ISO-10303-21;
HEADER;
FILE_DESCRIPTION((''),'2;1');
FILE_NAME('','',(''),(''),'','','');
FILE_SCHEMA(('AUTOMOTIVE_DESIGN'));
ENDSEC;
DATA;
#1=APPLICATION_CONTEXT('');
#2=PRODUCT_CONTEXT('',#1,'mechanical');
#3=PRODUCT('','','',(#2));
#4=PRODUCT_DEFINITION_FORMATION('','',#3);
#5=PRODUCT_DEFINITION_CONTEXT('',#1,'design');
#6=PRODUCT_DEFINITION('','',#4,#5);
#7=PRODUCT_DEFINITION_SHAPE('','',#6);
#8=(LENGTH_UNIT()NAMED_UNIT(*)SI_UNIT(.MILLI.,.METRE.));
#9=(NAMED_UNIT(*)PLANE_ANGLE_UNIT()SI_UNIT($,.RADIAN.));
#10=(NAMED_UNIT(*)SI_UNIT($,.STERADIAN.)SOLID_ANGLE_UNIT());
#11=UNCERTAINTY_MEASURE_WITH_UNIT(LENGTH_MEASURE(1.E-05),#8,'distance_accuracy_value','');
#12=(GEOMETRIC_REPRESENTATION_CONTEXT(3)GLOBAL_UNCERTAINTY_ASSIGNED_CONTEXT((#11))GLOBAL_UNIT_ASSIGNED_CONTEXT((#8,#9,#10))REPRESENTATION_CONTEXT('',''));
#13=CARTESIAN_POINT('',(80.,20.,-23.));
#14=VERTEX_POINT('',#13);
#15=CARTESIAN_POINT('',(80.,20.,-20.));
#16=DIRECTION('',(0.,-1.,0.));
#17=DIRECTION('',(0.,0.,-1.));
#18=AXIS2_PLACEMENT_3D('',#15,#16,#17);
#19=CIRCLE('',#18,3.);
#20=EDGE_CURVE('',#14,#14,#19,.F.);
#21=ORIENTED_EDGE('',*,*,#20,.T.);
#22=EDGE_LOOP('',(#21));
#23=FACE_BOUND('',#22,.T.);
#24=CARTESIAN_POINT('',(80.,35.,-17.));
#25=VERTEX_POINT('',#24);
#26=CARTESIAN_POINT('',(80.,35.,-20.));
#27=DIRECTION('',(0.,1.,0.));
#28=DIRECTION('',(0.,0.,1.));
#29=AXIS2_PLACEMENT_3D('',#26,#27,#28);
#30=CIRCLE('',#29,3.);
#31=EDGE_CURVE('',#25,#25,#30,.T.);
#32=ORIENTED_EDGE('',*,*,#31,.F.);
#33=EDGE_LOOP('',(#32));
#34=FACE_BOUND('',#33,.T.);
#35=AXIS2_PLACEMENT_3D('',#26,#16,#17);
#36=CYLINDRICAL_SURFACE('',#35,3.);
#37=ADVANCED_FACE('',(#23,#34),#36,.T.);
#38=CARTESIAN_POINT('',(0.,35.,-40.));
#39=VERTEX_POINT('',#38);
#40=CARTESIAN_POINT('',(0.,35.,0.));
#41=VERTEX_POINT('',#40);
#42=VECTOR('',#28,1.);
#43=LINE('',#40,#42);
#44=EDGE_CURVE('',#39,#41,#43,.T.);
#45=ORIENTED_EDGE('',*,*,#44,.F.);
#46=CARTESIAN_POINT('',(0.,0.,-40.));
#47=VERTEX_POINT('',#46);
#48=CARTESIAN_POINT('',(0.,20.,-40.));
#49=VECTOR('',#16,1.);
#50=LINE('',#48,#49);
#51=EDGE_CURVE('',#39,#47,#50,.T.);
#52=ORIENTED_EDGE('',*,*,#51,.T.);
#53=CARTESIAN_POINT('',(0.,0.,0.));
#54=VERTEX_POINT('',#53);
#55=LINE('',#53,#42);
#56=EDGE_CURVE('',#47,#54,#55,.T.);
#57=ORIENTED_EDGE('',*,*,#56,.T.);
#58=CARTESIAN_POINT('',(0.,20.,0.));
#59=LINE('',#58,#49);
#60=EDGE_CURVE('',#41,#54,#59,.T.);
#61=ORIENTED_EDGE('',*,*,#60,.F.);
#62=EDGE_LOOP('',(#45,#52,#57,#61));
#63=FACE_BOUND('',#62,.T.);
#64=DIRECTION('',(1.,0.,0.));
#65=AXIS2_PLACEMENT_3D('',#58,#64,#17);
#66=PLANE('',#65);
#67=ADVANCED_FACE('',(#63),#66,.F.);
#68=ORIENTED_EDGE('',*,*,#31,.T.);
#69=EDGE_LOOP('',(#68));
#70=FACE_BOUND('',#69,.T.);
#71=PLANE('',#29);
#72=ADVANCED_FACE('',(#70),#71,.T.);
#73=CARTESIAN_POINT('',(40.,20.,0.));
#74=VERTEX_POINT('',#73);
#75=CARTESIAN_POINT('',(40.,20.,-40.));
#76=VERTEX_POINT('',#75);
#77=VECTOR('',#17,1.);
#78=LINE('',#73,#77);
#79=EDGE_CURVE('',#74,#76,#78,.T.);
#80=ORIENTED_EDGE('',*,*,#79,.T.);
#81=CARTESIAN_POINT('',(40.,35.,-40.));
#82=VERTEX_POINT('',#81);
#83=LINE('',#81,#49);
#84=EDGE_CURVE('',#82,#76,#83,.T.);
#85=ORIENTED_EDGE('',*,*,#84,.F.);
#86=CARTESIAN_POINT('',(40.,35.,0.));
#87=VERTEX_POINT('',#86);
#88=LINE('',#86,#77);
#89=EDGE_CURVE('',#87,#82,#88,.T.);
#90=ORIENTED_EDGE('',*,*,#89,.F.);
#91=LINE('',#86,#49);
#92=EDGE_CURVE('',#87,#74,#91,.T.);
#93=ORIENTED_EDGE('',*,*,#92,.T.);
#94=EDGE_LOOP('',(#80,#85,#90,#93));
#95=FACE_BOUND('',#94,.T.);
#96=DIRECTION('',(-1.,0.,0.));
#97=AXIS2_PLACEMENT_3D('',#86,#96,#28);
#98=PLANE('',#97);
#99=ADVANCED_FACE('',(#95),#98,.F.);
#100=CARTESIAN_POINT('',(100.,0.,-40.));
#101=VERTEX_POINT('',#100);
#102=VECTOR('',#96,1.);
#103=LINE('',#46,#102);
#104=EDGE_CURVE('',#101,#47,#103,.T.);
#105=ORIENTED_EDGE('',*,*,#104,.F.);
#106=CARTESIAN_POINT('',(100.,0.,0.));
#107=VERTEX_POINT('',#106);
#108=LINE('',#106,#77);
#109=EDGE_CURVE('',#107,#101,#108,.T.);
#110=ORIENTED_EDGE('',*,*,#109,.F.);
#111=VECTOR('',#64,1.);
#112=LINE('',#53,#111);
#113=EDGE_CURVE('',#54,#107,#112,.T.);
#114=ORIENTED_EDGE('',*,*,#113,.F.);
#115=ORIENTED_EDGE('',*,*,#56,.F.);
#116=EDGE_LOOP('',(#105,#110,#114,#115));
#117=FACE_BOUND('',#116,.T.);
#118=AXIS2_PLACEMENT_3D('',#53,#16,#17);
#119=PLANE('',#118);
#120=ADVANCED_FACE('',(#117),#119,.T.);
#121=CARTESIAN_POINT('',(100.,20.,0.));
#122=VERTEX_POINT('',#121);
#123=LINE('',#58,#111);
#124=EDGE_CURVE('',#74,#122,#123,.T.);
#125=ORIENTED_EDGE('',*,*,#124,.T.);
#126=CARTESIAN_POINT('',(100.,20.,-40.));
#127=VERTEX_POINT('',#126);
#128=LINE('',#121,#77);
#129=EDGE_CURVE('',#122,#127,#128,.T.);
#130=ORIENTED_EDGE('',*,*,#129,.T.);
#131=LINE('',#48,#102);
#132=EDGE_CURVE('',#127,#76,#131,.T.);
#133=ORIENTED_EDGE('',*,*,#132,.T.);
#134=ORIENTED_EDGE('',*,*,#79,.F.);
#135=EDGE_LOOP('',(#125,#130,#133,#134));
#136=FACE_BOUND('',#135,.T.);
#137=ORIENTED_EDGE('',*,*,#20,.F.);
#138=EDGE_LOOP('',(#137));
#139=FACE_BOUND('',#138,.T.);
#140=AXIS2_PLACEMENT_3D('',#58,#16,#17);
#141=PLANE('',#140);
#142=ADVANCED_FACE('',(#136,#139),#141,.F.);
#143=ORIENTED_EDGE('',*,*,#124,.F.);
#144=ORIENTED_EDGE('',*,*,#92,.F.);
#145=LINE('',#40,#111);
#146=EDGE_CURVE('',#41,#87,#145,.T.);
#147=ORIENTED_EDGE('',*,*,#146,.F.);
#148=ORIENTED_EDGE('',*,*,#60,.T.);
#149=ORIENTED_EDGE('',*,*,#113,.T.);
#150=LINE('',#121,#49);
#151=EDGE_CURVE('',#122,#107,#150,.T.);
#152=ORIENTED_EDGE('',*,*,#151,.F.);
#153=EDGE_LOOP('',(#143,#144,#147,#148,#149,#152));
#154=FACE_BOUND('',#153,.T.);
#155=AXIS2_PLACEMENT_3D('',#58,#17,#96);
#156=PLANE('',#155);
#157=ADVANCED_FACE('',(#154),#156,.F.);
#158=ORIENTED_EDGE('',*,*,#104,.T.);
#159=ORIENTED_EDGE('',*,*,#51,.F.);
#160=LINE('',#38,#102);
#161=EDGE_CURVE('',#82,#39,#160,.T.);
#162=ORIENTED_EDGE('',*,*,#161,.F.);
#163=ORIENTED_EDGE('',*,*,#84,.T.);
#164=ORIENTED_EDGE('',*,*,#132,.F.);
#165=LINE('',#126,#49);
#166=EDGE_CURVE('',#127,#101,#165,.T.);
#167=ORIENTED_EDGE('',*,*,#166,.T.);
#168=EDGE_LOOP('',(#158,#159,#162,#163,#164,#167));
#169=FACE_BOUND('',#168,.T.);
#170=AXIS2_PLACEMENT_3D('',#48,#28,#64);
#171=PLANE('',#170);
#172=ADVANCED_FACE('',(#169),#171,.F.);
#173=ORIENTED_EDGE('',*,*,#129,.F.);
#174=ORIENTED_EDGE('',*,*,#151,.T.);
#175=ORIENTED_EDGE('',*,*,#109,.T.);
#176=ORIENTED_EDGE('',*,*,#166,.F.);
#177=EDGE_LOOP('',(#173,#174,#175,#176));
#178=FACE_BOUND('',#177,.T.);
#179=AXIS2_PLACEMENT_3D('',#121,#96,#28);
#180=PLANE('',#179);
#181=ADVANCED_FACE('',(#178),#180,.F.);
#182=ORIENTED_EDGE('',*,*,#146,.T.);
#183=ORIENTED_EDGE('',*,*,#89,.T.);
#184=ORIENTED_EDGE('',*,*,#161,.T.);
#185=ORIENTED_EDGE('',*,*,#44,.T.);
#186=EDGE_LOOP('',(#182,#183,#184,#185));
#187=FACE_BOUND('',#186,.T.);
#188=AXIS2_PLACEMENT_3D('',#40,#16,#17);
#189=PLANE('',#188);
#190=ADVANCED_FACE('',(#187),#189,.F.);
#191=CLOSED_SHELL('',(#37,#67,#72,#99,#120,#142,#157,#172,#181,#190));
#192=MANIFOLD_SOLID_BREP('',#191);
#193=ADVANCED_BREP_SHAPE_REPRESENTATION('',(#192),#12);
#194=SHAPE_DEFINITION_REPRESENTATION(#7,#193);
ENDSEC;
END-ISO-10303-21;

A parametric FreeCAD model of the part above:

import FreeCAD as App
import Part
import Sketcher
Q = App.Units.Quantity


def add_polygon(sketch, points):
    """Adds a closed chain of lines whose ends are joined by coincident constraints."""
    first, n = sketch.GeometryCount, len(points)
    for a, b in zip(points, points[1:] + points[:1]):
        sketch.addGeometry(Part.LineSegment(App.Vector(*a, 0), App.Vector(*b, 0)), False)
    for i in range(n):
        sketch.addConstraint(Sketcher.Constraint("Coincident", first + i, 2, first + (i + 1) % n, 1))

doc = App.newDocument("Part")
body = doc.addObject("PartDesign::Body", "Body")

sketch1 = doc.addObject("Sketcher::SketchObject", "Sketch")
body.addObject(sketch1)
sketch1.AttachmentSupport = (doc.XZ_Plane, [""])
sketch1.MapMode = "FlatFace"
add_polygon(sketch1, [(0, -40), (0, 0), (100, 0), (100, -40)])
sketch1.addConstraint(Sketcher.Constraint("Vertical", 0))
sketch1.addConstraint(Sketcher.Constraint("Horizontal", 1))
sketch1.addConstraint(Sketcher.Constraint("Vertical", 2))
sketch1.addConstraint(Sketcher.Constraint("Horizontal", 3))
sketch1.addConstraint(Sketcher.Constraint("Coincident", 0, 2, -1, 1))
sketch1.addConstraint(Sketcher.Constraint("DistanceX", 1, 1, 1, 2, Q("100 mm")))
sketch1.addConstraint(Sketcher.Constraint("DistanceY", 0, 1, 0, 2, Q("40 mm")))
pad1 = doc.addObject("PartDesign::Pad", "Pad")
body.addObject(pad1)
pad1.Profile = sketch1
pad1.Length = 20
pad1.Reversed = True

sketch2 = doc.addObject("Sketcher::SketchObject", "Sketch001")
body.addObject(sketch2)
sketch2.AttachmentSupport = (doc.XZ_Plane, [""])
sketch2.MapMode = "FlatFace"
sketch2.AttachmentOffset = App.Placement(App.Vector(0, 0, -20), App.Rotation())
sketch2.addGeometry(Part.Circle(App.Vector(80, -20, 0), App.Vector(0, 0, 1), 3), False)
sketch2.addConstraint(Sketcher.Constraint("Diameter", 0, Q("6 mm")))
sketch2.addConstraint(Sketcher.Constraint("DistanceX", -1, 1, 0, 3, Q("80 mm")))
sketch2.addConstraint(Sketcher.Constraint("DistanceY", 0, 3, -1, 1, Q("20 mm")))
pad2 = doc.addObject("PartDesign::Pad", "Pad001")
body.addObject(pad2)
pad2.Profile = sketch2
pad2.Length = 15
pad2.Reversed = True

sketch3 = doc.addObject("Sketcher::SketchObject", "Sketch002")
body.addObject(sketch3)
sketch3.AttachmentSupport = (doc.XZ_Plane, [""])
sketch3.MapMode = "FlatFace"
sketch3.AttachmentOffset = App.Placement(App.Vector(0, 0, -20), App.Rotation())
add_polygon(sketch3, [(0, -40), (0, 0), (40, 0), (40, -40)])
sketch3.addConstraint(Sketcher.Constraint("Vertical", 0))
sketch3.addConstraint(Sketcher.Constraint("Horizontal", 1))
sketch3.addConstraint(Sketcher.Constraint("Vertical", 2))
sketch3.addConstraint(Sketcher.Constraint("Horizontal", 3))
sketch3.addConstraint(Sketcher.Constraint("Coincident", 0, 2, -1, 1))
sketch3.addConstraint(Sketcher.Constraint("Equal", 3, 0))
sketch3.addConstraint(Sketcher.Constraint("DistanceX", 1, 1, 1, 2, Q("40 mm")))
pad3 = doc.addObject("PartDesign::Pad", "Pad002")
body.addObject(pad3)
pad3.Profile = sketch3
pad3.Length = 15
pad3.Reversed = True

doc.recompute()
